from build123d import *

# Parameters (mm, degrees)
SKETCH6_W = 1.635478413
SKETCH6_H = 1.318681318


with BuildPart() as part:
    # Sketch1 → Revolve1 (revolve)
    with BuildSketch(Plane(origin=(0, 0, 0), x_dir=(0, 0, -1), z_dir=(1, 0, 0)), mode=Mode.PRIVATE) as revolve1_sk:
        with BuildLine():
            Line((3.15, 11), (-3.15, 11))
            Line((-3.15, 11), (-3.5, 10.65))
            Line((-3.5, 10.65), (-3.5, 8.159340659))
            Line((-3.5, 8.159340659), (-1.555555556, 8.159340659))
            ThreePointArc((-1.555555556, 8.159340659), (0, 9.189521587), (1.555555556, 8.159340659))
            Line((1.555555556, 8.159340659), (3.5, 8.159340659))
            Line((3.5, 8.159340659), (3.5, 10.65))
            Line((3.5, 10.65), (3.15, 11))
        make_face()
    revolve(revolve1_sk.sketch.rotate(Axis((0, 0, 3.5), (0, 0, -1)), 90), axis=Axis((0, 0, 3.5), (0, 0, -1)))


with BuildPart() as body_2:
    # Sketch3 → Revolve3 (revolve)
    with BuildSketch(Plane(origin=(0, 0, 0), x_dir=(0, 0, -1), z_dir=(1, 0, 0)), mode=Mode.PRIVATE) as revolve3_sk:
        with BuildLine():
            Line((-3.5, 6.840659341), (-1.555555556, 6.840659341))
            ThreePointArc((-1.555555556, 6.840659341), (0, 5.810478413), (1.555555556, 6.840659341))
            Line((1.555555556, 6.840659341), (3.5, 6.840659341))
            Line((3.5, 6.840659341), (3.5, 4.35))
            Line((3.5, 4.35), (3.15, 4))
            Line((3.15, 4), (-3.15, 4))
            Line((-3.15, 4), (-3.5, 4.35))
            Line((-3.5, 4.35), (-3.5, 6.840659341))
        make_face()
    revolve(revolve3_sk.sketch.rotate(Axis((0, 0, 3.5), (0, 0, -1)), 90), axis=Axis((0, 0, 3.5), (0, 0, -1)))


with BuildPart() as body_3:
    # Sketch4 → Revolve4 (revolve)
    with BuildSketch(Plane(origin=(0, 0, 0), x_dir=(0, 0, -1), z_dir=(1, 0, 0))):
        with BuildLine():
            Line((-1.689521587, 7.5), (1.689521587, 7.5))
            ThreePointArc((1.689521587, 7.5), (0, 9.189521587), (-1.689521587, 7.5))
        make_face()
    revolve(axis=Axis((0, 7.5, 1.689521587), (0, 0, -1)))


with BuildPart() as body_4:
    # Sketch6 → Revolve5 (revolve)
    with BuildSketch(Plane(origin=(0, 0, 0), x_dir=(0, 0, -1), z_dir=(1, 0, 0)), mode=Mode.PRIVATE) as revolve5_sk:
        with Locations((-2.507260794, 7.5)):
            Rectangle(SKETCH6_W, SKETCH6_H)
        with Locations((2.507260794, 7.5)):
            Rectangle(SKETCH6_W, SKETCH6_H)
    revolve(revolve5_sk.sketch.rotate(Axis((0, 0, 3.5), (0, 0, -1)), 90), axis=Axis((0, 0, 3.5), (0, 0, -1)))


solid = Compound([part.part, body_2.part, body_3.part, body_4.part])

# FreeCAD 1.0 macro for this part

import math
import FreeCAD as App
import Part
import Sketcher
from FreeCAD import Vector
Q = App.Units.Quantity

doc = App.newDocument("Part")
body = doc.addObject("PartDesign::Body", "Body")

# Sketch on YZ plane
sketch1 = body.newObject("Sketcher::SketchObject", "Sketch")
sketch1.AttachmentSupport = (doc.getObject("YZ_Plane"), [""])
sketch1.MapMode = "FlatFace"
sketch1.addGeometry(Part.LineSegment(Vector(11, -3.15, 0), Vector(11, 3.15, 0)), False)
sketch1.addGeometry(Part.LineSegment(Vector(11, 3.15, 0), Vector(10.65, 3.5, 0)), False)
sketch1.addGeometry(Part.LineSegment(Vector(10.65, 3.5, 0), Vector(8.16, 3.5, 0)), False)
sketch1.addGeometry(Part.LineSegment(Vector(8.16, 3.5, 0), Vector(8.16, 1.56, 0)), False)
sketch1.addGeometry(Part.ArcOfCircle(Part.Circle(Vector(7.5, 0, 0), Vector(0, 0, 1), 1.69), math.radians(-67), math.radians(67)), False)
sketch1.addGeometry(Part.LineSegment(Vector(8.16, -1.56, 0), Vector(8.16, -3.5, 0)), False)
sketch1.addGeometry(Part.LineSegment(Vector(8.16, -3.5, 0), Vector(10.65, -3.5, 0)), False)
sketch1.addGeometry(Part.LineSegment(Vector(10.65, -3.5, 0), Vector(11, -3.15, 0)), False)
sketch1.addConstraint(Sketcher.Constraint("Coincident", 0, 2, 1, 1))
sketch1.addConstraint(Sketcher.Constraint("Coincident", 1, 2, 2, 1))
sketch1.addConstraint(Sketcher.Constraint("Coincident", 2, 2, 3, 1))
sketch1.addConstraint(Sketcher.Constraint("Coincident", 3, 2, 4, 2))
sketch1.addConstraint(Sketcher.Constraint("Coincident", 4, 1, 5, 1))
sketch1.addConstraint(Sketcher.Constraint("Coincident", 5, 2, 6, 1))
sketch1.addConstraint(Sketcher.Constraint("Coincident", 6, 2, 7, 1))
sketch1.addConstraint(Sketcher.Constraint("Coincident", 7, 2, 0, 1))
sketch1.addConstraint(Sketcher.Constraint("Vertical", 0))
sketch1.addConstraint(Sketcher.Constraint("Horizontal", 2))
sketch1.addConstraint(Sketcher.Constraint("Vertical", 3))
sketch1.addConstraint(Sketcher.Constraint("Vertical", 5))
sketch1.addConstraint(Sketcher.Constraint("Horizontal", 6))
sketch1.addConstraint(Sketcher.Constraint("Symmetric", 3, 2, 4, 1, -1))
sketch1.addConstraint(Sketcher.Constraint("Symmetric", 1, 2, 6, 2, -1))
sketch1.addConstraint(Sketcher.Constraint("Perpendicular", 1, 7))
sketch1.addConstraint(Sketcher.Constraint("Equal", 1, 7))
sketch1.addConstraint(Sketcher.Constraint("DistanceY", 0, 1, 0, 2, Q("6.3 mm")))
sketch1.addConstraint(Sketcher.Constraint("DistanceX", -1, 1, 0, 2, Q("11 mm")))
sketch1.addConstraint(Sketcher.Constraint("DistanceY", 5, 2, 2, 2, Q("7 mm")))
sketch1.addConstraint(Sketcher.Constraint("DistanceX", -1, 1, 4, 3, Q("7.5 mm")))
sketch1.addConstraint(Sketcher.Constraint("Radius", 4, Q("1.689522 mm")))
sketch1.addConstraint(Sketcher.Constraint("DistanceX", 2, 2, 2, 1, Q("2.490659 mm")))
revolution = body.newObject("PartDesign::Revolution", "Revolution")
revolution.Profile = sketch1
revolution.ReferenceAxis = (sketch1, ["V_Axis"])
revolution.Angle = 360
body2 = doc.addObject("PartDesign::Body", "Body001")

# Sketch on YZ plane
sketch2 = body2.newObject("Sketcher::SketchObject", "Sketch001")
sketch2.AttachmentSupport = (doc.getObject("YZ_Plane001"), [""])
sketch2.MapMode = "FlatFace"
sketch2.addGeometry(Part.LineSegment(Vector(6.84, 1.56, 0), Vector(6.84, 3.5, 0)), False)
sketch2.addGeometry(Part.LineSegment(Vector(6.84, 3.5, 0), Vector(4.35, 3.5, 0)), False)
sketch2.addGeometry(Part.LineSegment(Vector(4.35, 3.5, 0), Vector(4, 3.15, 0)), False)
sketch2.addGeometry(Part.LineSegment(Vector(4, 3.15, 0), Vector(4, -3.15, 0)), False)
sketch2.addGeometry(Part.LineSegment(Vector(4, -3.15, 0), Vector(4.35, -3.5, 0)), False)
sketch2.addGeometry(Part.LineSegment(Vector(4.35, -3.5, 0), Vector(6.84, -3.5, 0)), False)
sketch2.addGeometry(Part.LineSegment(Vector(6.84, -3.5, 0), Vector(6.84, -1.56, 0)), False)
sketch2.addGeometry(Part.ArcOfCircle(Part.Circle(Vector(7.5, 0, 0), Vector(0, 0, 1), 1.69), math.radians(113), math.radians(247)), False)
sketch2.addConstraint(Sketcher.Constraint("Coincident", 0, 2, 1, 1))
sketch2.addConstraint(Sketcher.Constraint("Coincident", 1, 2, 2, 1))
sketch2.addConstraint(Sketcher.Constraint("Coincident", 2, 2, 3, 1))
sketch2.addConstraint(Sketcher.Constraint("Coincident", 3, 2, 4, 1))
sketch2.addConstraint(Sketcher.Constraint("Coincident", 4, 2, 5, 1))
sketch2.addConstraint(Sketcher.Constraint("Coincident", 5, 2, 6, 1))
sketch2.addConstraint(Sketcher.Constraint("Coincident", 6, 2, 7, 2))
sketch2.addConstraint(Sketcher.Constraint("Coincident", 7, 1, 0, 1))
sketch2.addConstraint(Sketcher.Constraint("Vertical", 0))
sketch2.addConstraint(Sketcher.Constraint("Horizontal", 1))
sketch2.addConstraint(Sketcher.Constraint("Vertical", 3))
sketch2.addConstraint(Sketcher.Constraint("Horizontal", 5))
sketch2.addConstraint(Sketcher.Constraint("Vertical", 6))
sketch2.addConstraint(Sketcher.Constraint("Symmetric", 1, 2, 4, 2, -1))
sketch2.addConstraint(Sketcher.Constraint("Symmetric", 6, 2, 7, 1, -1))
sketch2.addConstraint(Sketcher.Constraint("Perpendicular", 2, 4))
sketch2.addConstraint(Sketcher.Constraint("Equal", 2, 4))
sketch2.addConstraint(Sketcher.Constraint("DistanceY", 3, 2, 3, 1, Q("6.3 mm")))
sketch2.addConstraint(Sketcher.Constraint("DistanceX", -1, 1, 2, 2, Q("4 mm")))
sketch2.addConstraint(Sketcher.Constraint("DistanceY", 4, 2, 1, 2, Q("7 mm")))
sketch2.addConstraint(Sketcher.Constraint("DistanceX", -1, 1, 7, 3, Q("7.5 mm")))
sketch2.addConstraint(Sketcher.Constraint("Radius", 7, Q("1.689522 mm")))
sketch2.addConstraint(Sketcher.Constraint("DistanceX", 1, 2, 1, 1, Q("2.490659 mm")))
revolution2 = body2.newObject("PartDesign::Revolution", "Revolution001")
revolution2.Profile = sketch2
revolution2.ReferenceAxis = (sketch2, ["V_Axis"])
revolution2.Angle = 360
body3 = doc.addObject("PartDesign::Body", "Body002")

# Sketch on YZ plane
sketch3 = body3.newObject("Sketcher::SketchObject", "Sketch002")
sketch3.AttachmentSupport = (doc.getObject("YZ_Plane002"), [""])
sketch3.MapMode = "FlatFace"
sketch3.addGeometry(Part.LineSegment(Vector(7.5, 1.7, 0), Vector(7.5, -1.7, 0)), False)
sketch3.addGeometry(Part.ArcOfCircle(Part.Circle(Vector(7.5, 0, 0), Vector(0, 0, 1), 1.7), math.radians(-90), math.radians(90)), False)
sketch3.addGeometry(Part.LineSegment(Vector(7.5, 1.7, 0), Vector(7.5, -1.7, 0)), True)  # axis
sketch3.addConstraint(Sketcher.Constraint("Coincident", 0, 1, 1, 2))
sketch3.addConstraint(Sketcher.Constraint("Coincident", 1, 1, 0, 2))
sketch3.addConstraint(Sketcher.Constraint("Vertical", 0))
sketch3.addConstraint(Sketcher.Constraint("Vertical", 2))
sketch3.addConstraint(Sketcher.Constraint("Coincident", 2, 1, 0, 1))
sketch3.addConstraint(Sketcher.Constraint("PointOnObject", 1, 3, -1))
sketch3.addConstraint(Sketcher.Constraint("Vertical", 1, 3, 0, 1))
sketch3.addConstraint(Sketcher.Constraint("Equal", 0, 2))
sketch3.addConstraint(Sketcher.Constraint("DistanceX", -1, 1, 1, 3, Q("7.5 mm")))
sketch3.addConstraint(Sketcher.Constraint("Radius", 1, Q("1.689522 mm")))
revolution3 = body3.newObject("PartDesign::Revolution", "Revolution002")
revolution3.Profile = sketch3
revolution3.ReferenceAxis = (sketch3, ["Axis0"])
revolution3.Angle = 360
body4 = doc.addObject("PartDesign::Body", "Body003")
body4.AllowCompound = True

# Sketch on YZ plane
sketch4 = body4.newObject("Sketcher::SketchObject", "Sketch003")
sketch4.AttachmentSupport = (doc.getObject("YZ_Plane003"), [""])
sketch4.MapMode = "FlatFace"
sketch4.addGeometry(Part.LineSegment(Vector(8.2, 3.3, 0), Vector(6.8, 3.3, 0)), False)
sketch4.addGeometry(Part.LineSegment(Vector(6.8, 3.3, 0), Vector(6.8, 1.7, 0)), False)
sketch4.addGeometry(Part.LineSegment(Vector(6.8, 1.7, 0), Vector(8.2, 1.7, 0)), False)
sketch4.addGeometry(Part.LineSegment(Vector(8.2, 1.7, 0), Vector(8.2, 3.3, 0)), False)
sketch4.addGeometry(Part.LineSegment(Vector(8.2, -1.7, 0), Vector(6.8, -1.7, 0)), False)
sketch4.addGeometry(Part.LineSegment(Vector(6.8, -1.7, 0), Vector(6.8, -3.3, 0)), False)
sketch4.addGeometry(Part.LineSegment(Vector(6.8, -3.3, 0), Vector(8.2, -3.3, 0)), False)
sketch4.addGeometry(Part.LineSegment(Vector(8.2, -3.3, 0), Vector(8.2, -1.7, 0)), False)
sketch4.addConstraint(Sketcher.Constraint("Coincident", 0, 2, 1, 1))
sketch4.addConstraint(Sketcher.Constraint("Coincident", 1, 2, 2, 1))
sketch4.addConstraint(Sketcher.Constraint("Coincident", 2, 2, 3, 1))
sketch4.addConstraint(Sketcher.Constraint("Coincident", 3, 2, 0, 1))
sketch4.addConstraint(Sketcher.Constraint("Coincident", 4, 2, 5, 1))
sketch4.addConstraint(Sketcher.Constraint("Coincident", 5, 2, 6, 1))
sketch4.addConstraint(Sketcher.Constraint("Coincident", 6, 2, 7, 1))
sketch4.addConstraint(Sketcher.Constraint("Coincident", 7, 2, 4, 1))
sketch4.addConstraint(Sketcher.Constraint("Horizontal", 0))
sketch4.addConstraint(Sketcher.Constraint("Vertical", 1))
sketch4.addConstraint(Sketcher.Constraint("Horizontal", 2))
sketch4.addConstraint(Sketcher.Constraint("Vertical", 3))
sketch4.addConstraint(Sketcher.Constraint("Horizontal", 4))
sketch4.addConstraint(Sketcher.Constraint("Vertical", 5))
sketch4.addConstraint(Sketcher.Constraint("Horizontal", 6))
sketch4.addConstraint(Sketcher.Constraint("Vertical", 7))
sketch4.addConstraint(Sketcher.Constraint("Symmetric", 1, 2, 4, 2, -1))
sketch4.addConstraint(Sketcher.Constraint("Symmetric", 3, 2, 6, 2, -1))
sketch4.addConstraint(Sketcher.Constraint("DistanceY", 5, 2, 0, 2, Q("6.65 mm")))
sketch4.addConstraint(Sketcher.Constraint("DistanceX", 0, 2, 0, 1, Q("1.318681 mm")))
sketch4.addConstraint(Sketcher.Constraint("DistanceY", 1, 2, 1, 1, Q("1.635478 mm")))
sketch4.addConstraint(Sketcher.Constraint("DistanceX", -1, 1, 0, 2, Q("6.840659 mm")))
revolution4 = body4.newObject("PartDesign::Revolution", "Revolution003")
revolution4.Profile = sketch4
revolution4.ReferenceAxis = (sketch4, ["V_Axis"])
revolution4.Angle = 360

doc.recompute()
